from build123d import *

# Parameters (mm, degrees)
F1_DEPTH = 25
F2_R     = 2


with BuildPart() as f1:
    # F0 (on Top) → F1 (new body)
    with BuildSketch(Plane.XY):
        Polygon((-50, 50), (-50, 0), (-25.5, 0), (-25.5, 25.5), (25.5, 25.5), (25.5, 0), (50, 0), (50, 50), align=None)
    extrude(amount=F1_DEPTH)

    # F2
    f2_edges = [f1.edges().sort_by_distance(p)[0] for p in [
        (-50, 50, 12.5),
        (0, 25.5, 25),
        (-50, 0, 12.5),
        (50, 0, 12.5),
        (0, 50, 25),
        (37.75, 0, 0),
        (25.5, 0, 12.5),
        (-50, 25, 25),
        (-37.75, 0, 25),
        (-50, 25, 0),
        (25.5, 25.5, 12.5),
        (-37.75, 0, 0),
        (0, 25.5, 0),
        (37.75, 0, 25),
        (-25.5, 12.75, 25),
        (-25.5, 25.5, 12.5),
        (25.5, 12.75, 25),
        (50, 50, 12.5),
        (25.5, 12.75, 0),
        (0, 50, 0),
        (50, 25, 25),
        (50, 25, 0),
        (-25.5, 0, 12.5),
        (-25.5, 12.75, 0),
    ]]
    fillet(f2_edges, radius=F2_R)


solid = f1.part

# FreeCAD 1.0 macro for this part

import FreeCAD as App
import Part
import Sketcher

doc = App.newDocument("Part")
body = doc.addObject("PartDesign::Body", "Body")

# Sketch on XY plane
sketch1 = doc.addObject("Sketcher::SketchObject", "Sketch")
body.addObject(sketch1)
sketch1.AttachmentSupport = (doc.XY_Plane, [""])
sketch1.MapMode = "FlatFace"
sketch1.addGeometry([
    Part.LineSegment(App.Vector(-50, 50, 0), App.Vector(-50, 0, 0)),  # 0
    Part.LineSegment(App.Vector(-50, 0, 0), App.Vector(-26, 0, 0)),  # 1
    Part.LineSegment(App.Vector(-26, 0, 0), App.Vector(-26, 26, 0)),  # 2
    Part.LineSegment(App.Vector(-26, 26, 0), App.Vector(26, 26, 0)),  # 3
    Part.LineSegment(App.Vector(26, 26, 0), App.Vector(26, 0, 0)),  # 4
    Part.LineSegment(App.Vector(26, 0, 0), App.Vector(50, 0, 0)),  # 5
    Part.LineSegment(App.Vector(50, 0, 0), App.Vector(50, 50, 0)),  # 6
    Part.LineSegment(App.Vector(50, 50, 0), App.Vector(-50, 50, 0)),  # 7
], False)
sketch1.addConstraint([
    Sketcher.Constraint("Coincident", 0, 2, 1, 1),
    Sketcher.Constraint("Coincident", 1, 2, 2, 1),
    Sketcher.Constraint("Coincident", 2, 2, 3, 1),
    Sketcher.Constraint("Coincident", 3, 2, 4, 1),
    Sketcher.Constraint("Coincident", 4, 2, 5, 1),
    Sketcher.Constraint("Coincident", 5, 2, 6, 1),
    Sketcher.Constraint("Coincident", 6, 2, 7, 1),
    Sketcher.Constraint("Coincident", 7, 2, 0, 1),
    Sketcher.Constraint("Vertical", 0),
    Sketcher.Constraint("Horizontal", 1),
    Sketcher.Constraint("Vertical", 2),
    Sketcher.Constraint("Horizontal", 3),
    Sketcher.Constraint("Vertical", 4),
    Sketcher.Constraint("Horizontal", 5),
    Sketcher.Constraint("Vertical", 6),
    Sketcher.Constraint("Horizontal", 7),
    Sketcher.Constraint("Symmetric", 1, 2, 4, 2, -1, 1),
    Sketcher.Constraint("Symmetric", 0, 2, 5, 2, -2),
    Sketcher.Constraint("DistanceX", 3, 1, 3, 2, 51.0),
    Sketcher.Constraint("DistanceX", 7, 2, 7, 1, 100.0),
    Sketcher.Constraint("DistanceY", 0, 2, 0, 1, 50.0),
    Sketcher.Constraint("DistanceY", 2, 1, 2, 2, 25.5),
])
pad1 = doc.addObject("PartDesign::Pad", "Pad")
body.addObject(pad1)
pad1.Profile = sketch1
pad1.Length = 25
doc.recompute()

fillet = doc.addObject("PartDesign::Fillet", "Fillet")
body.addObject(fillet)
fillet.Base = (pad1, ["Edge1"])
fillet.UseAllEdges = True
fillet.Radius = 2

doc.recompute()
